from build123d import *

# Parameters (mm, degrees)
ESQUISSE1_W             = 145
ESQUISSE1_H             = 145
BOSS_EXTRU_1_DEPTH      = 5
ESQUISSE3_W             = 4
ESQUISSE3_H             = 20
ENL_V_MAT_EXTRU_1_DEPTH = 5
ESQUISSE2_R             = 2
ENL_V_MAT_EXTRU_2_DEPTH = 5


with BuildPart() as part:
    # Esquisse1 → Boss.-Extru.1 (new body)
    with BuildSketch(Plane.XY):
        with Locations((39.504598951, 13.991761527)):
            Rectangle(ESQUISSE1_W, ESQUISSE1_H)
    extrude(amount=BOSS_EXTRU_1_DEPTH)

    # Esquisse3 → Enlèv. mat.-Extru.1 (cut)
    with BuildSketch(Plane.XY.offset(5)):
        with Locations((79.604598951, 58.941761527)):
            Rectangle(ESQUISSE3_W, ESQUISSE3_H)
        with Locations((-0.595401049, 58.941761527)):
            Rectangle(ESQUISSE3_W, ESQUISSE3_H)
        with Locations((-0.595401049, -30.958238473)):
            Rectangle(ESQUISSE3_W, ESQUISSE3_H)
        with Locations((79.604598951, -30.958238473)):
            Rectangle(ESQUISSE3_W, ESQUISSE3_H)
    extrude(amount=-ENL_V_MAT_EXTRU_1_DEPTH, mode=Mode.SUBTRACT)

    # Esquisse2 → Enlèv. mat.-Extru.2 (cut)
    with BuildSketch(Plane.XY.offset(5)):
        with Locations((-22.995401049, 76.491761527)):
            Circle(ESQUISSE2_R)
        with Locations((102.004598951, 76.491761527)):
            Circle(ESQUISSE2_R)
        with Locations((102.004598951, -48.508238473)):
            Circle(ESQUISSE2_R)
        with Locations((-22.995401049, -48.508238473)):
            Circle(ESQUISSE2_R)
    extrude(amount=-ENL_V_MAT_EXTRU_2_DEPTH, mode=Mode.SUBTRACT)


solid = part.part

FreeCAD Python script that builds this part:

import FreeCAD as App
import Part
import Sketcher
from FreeCAD import Vector

doc = App.newDocument("Part")
body = doc.addObject("PartDesign::Body", "Body")

# Sketch on XY plane
sketch1 = doc.addObject("Sketcher::SketchObject", "Sketch")
body.addObject(sketch1)
sketch1.AttachmentSupport = (doc.XY_Plane, [""])
sketch1.MapMode = "FlatFace"
sketch1.addGeometry(Part.LineSegment(Vector(-33, 86, 0), Vector(-33, -59, 0)), False)
sketch1.addGeometry(Part.LineSegment(Vector(-33, -59, 0), Vector(112, -59, 0)), False)
sketch1.addGeometry(Part.LineSegment(Vector(112, -59, 0), Vector(112, 86, 0)), False)
sketch1.addGeometry(Part.LineSegment(Vector(112, 86, 0), Vector(-33, 86, 0)), False)
sketch1.addConstraint(Sketcher.Constraint("Coincident", 0, 2, 1, 1))
sketch1.addConstraint(Sketcher.Constraint("Coincident", 1, 2, 2, 1))
sketch1.addConstraint(Sketcher.Constraint("Coincident", 2, 2, 3, 1))
sketch1.addConstraint(Sketcher.Constraint("Coincident", 3, 2, 0, 1))
sketch1.addConstraint(Sketcher.Constraint("Vertical", 0))
sketch1.addConstraint(Sketcher.Constraint("Horizontal", 1))
sketch1.addConstraint(Sketcher.Constraint("Vertical", 2))
sketch1.addConstraint(Sketcher.Constraint("Horizontal", 3))
sketch1.addConstraint(Sketcher.Constraint("Equal", 3, 0))
sketch1.addConstraint(Sketcher.Constraint("DistanceX", 1, 1, 1, 2, 145.0))
sketch1.addConstraint(Sketcher.Constraint("DistanceX", 0, 2, -1, 1, 32.995401))
sketch1.addConstraint(Sketcher.Constraint("DistanceY", 0, 2, -1, 1, 58.508238))
pad1 = doc.addObject("PartDesign::Pad", "Pad")
body.addObject(pad1)
pad1.Profile = sketch1
pad1.Length = 5

# Sketch on XY plane
sketch2 = doc.addObject("Sketcher::SketchObject", "Sketch001")
body.addObject(sketch2)
sketch2.AttachmentSupport = (doc.XY_Plane, [""])
sketch2.MapMode = "FlatFace"
sketch2.AttachmentOffset = App.Placement(Vector(0, 0, 5), App.Rotation())
sketch2.addGeometry(Part.LineSegment(Vector(77.6, 68.9, 0), Vector(77.6, 48.9, 0)), False)
sketch2.addGeometry(Part.LineSegment(Vector(77.6, 48.9, 0), Vector(81.6, 48.9, 0)), False)
sketch2.addGeometry(Part.LineSegment(Vector(81.6, 48.9, 0), Vector(81.6, 68.9, 0)), False)
sketch2.addGeometry(Part.LineSegment(Vector(81.6, 68.9, 0), Vector(77.6, 68.9, 0)), False)
sketch2.addGeometry(Part.LineSegment(Vector(-2.6, 68.9, 0), Vector(-2.6, 48.9, 0)), False)
sketch2.addGeometry(Part.LineSegment(Vector(-2.6, 48.9, 0), Vector(1.4, 48.9, 0)), False)
sketch2.addGeometry(Part.LineSegment(Vector(1.4, 48.9, 0), Vector(1.4, 68.9, 0)), False)
sketch2.addGeometry(Part.LineSegment(Vector(1.4, 68.9, 0), Vector(-2.6, 68.9, 0)), False)
sketch2.addGeometry(Part.LineSegment(Vector(-2.6, -21, 0), Vector(-2.6, -41, 0)), False)
sketch2.addGeometry(Part.LineSegment(Vector(-2.6, -41, 0), Vector(1.4, -41, 0)), False)
sketch2.addGeometry(Part.LineSegment(Vector(1.4, -41, 0), Vector(1.4, -21, 0)), False)
sketch2.addGeometry(Part.LineSegment(Vector(1.4, -21, 0), Vector(-2.6, -21, 0)), False)
sketch2.addGeometry(Part.LineSegment(Vector(77.6, -21, 0), Vector(77.6, -41, 0)), False)
sketch2.addGeometry(Part.LineSegment(Vector(77.6, -41, 0), Vector(81.6, -41, 0)), False)
sketch2.addGeometry(Part.LineSegment(Vector(81.6, -41, 0), Vector(81.6, -21, 0)), False)
sketch2.addGeometry(Part.LineSegment(Vector(81.6, -21, 0), Vector(77.6, -21, 0)), False)
sketch2.addConstraint(Sketcher.Constraint("Coincident", 0, 2, 1, 1))
sketch2.addConstraint(Sketcher.Constraint("Coincident", 1, 2, 2, 1))
sketch2.addConstraint(Sketcher.Constraint("Coincident", 2, 2, 3, 1))
sketch2.addConstraint(Sketcher.Constraint("Coincident", 3, 2, 0, 1))
sketch2.addConstraint(Sketcher.Constraint("Coincident", 4, 2, 5, 1))
sketch2.addConstraint(Sketcher.Constraint("Coincident", 5, 2, 6, 1))
sketch2.addConstraint(Sketcher.Constraint("Coincident", 6, 2, 7, 1))
sketch2.addConstraint(Sketcher.Constraint("Coincident", 7, 2, 4, 1))
sketch2.addConstraint(Sketcher.Constraint("Coincident", 8, 2, 9, 1))
sketch2.addConstraint(Sketcher.Constraint("Coincident", 9, 2, 10, 1))
sketch2.addConstraint(Sketcher.Constraint("Coincident", 10, 2, 11, 1))
sketch2.addConstraint(Sketcher.Constraint("Coincident", 11, 2, 8, 1))
sketch2.addConstraint(Sketcher.Constraint("Coincident", 12, 2, 13, 1))
sketch2.addConstraint(Sketcher.Constraint("Coincident", 13, 2, 14, 1))
sketch2.addConstraint(Sketcher.Constraint("Coincident", 14, 2, 15, 1))
sketch2.addConstraint(Sketcher.Constraint("Coincident", 15, 2, 12, 1))
sketch2.addConstraint(Sketcher.Constraint("Vertical", 0))
sketch2.addConstraint(Sketcher.Constraint("Horizontal", 1))
sketch2.addConstraint(Sketcher.Constraint("Vertical", 2))
sketch2.addConstraint(Sketcher.Constraint("Horizontal", 3))
sketch2.addConstraint(Sketcher.Constraint("Vertical", 4))
sketch2.addConstraint(Sketcher.Constraint("Horizontal", 5))
sketch2.addConstraint(Sketcher.Constraint("Vertical", 6))
sketch2.addConstraint(Sketcher.Constraint("Horizontal", 7))
sketch2.addConstraint(Sketcher.Constraint("Vertical", 8))
sketch2.addConstraint(Sketcher.Constraint("Horizontal", 9))
sketch2.addConstraint(Sketcher.Constraint("Vertical", 10))
sketch2.addConstraint(Sketcher.Constraint("Horizontal", 11))
sketch2.addConstraint(Sketcher.Constraint("Vertical", 12))
sketch2.addConstraint(Sketcher.Constraint("Horizontal", 13))
sketch2.addConstraint(Sketcher.Constraint("Vertical", 14))
sketch2.addConstraint(Sketcher.Constraint("Horizontal", 15))
sketch2.addConstraint(Sketcher.Constraint("Horizontal", 1, 2, 4, 2))
sketch2.addConstraint(Sketcher.Constraint("Horizontal", 3, 2, 6, 2))
sketch2.addConstraint(Sketcher.Constraint("Horizontal", 9, 2, 12, 2))
sketch2.addConstraint(Sketcher.Constraint("Horizontal", 11, 2, 14, 2))
sketch2.addConstraint(Sketcher.Constraint("Vertical", 7, 2, 8, 2))
sketch2.addConstraint(Sketcher.Constraint("Vertical", 6, 2, 9, 2))
sketch2.addConstraint(Sketcher.Constraint("Vertical", 3, 2, 12, 2))
sketch2.addConstraint(Sketcher.Constraint("Vertical", 2, 2, 13, 2))
sketch2.addConstraint(Sketcher.Constraint("Equal", 3, 5))
sketch2.addConstraint(Sketcher.Constraint("Equal", 6, 8))
sketch2.addConstraint(Sketcher.Constraint("DistanceX", 1, 1, 1, 2, 4.0))
sketch2.addConstraint(Sketcher.Constraint("DistanceY", 0, 2, 0, 1, 20.0))
sketch2.addConstraint(Sketcher.Constraint("DistanceX", 4, 2, 0, 2, 80.2))
sketch2.addConstraint(Sketcher.Constraint("DistanceY", 8, 2, 4, 2, 89.9))
sketch2.addConstraint(Sketcher.Constraint("DistanceX", -1, 1, 0, 2, 77.604599))
sketch2.addConstraint(Sketcher.Constraint("DistanceY", -1, 1, 0, 2, 48.941762))
pocket1 = doc.addObject("PartDesign::Pocket", "Pocket")
body.addObject(pocket1)
pocket1.Profile = sketch2
pocket1.Length = 5

# Sketch on XY plane
sketch3 = doc.addObject("Sketcher::SketchObject", "Sketch002")
body.addObject(sketch3)
sketch3.AttachmentSupport = (doc.XY_Plane, [""])
sketch3.MapMode = "FlatFace"
sketch3.AttachmentOffset = App.Placement(Vector(0, 0, 5), App.Rotation())
sketch3.addGeometry(Part.Circle(Vector(-23, 76.5, 0), Vector(0, 0, 1), 2), False)
sketch3.addGeometry(Part.Circle(Vector(102, 76.5, 0), Vector(0, 0, 1), 2), False)
sketch3.addGeometry(Part.Circle(Vector(102, -48.5, 0), Vector(0, 0, 1), 2), False)
sketch3.addGeometry(Part.Circle(Vector(-23, -48.5, 0), Vector(0, 0, 1), 2), False)
sketch3.addConstraint(Sketcher.Constraint("Equal", 0, 1))
sketch3.addConstraint(Sketcher.Constraint("Equal", 1, 2))
sketch3.addConstraint(Sketcher.Constraint("Equal", 2, 3))
sketch3.addConstraint(Sketcher.Constraint("Horizontal", 0, 3, 1, 3))
sketch3.addConstraint(Sketcher.Constraint("Horizontal", 2, 3, 3, 3))
sketch3.addConstraint(Sketcher.Constraint("Vertical", 1, 3, 2, 3))
sketch3.addConstraint(Sketcher.Constraint("Vertical", 0, 3, 3, 3))
sketch3.addConstraint(Sketcher.Constraint("Diameter", 0, 4.0))
sketch3.addConstraint(Sketcher.Constraint("DistanceX", 0, 3, 1, 3, 125.0))
sketch3.addConstraint(Sketcher.Constraint("DistanceY", 2, 3, 1, 3, 125.0))
sketch3.addConstraint(Sketcher.Constraint("DistanceX", 0, 3, -1, 1, 22.995401))
sketch3.addConstraint(Sketcher.Constraint("DistanceY", -1, 1, 0, 3, 76.491762))
pocket2 = doc.addObject("PartDesign::Pocket", "Pocket001")
body.addObject(pocket2)
pocket2.Profile = sketch3
pocket2.Length = 5

doc.recompute()
